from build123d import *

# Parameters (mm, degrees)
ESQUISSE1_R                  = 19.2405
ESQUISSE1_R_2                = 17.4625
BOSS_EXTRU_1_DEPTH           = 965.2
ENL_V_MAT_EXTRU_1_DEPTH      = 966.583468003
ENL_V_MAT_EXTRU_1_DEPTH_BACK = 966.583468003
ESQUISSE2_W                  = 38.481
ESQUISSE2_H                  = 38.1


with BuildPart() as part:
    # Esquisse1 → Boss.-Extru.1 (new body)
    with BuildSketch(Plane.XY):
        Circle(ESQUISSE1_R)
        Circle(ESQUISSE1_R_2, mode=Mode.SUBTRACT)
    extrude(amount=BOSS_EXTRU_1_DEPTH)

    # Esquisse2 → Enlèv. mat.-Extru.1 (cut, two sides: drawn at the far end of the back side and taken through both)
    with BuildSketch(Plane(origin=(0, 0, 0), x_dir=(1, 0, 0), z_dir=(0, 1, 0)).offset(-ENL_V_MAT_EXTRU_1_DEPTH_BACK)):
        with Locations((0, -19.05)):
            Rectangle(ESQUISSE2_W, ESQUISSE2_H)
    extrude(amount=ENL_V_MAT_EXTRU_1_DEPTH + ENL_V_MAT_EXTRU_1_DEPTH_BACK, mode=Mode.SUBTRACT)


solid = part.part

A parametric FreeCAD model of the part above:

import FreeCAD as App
import Part
import Sketcher
Q = App.Units.Quantity

doc = App.newDocument("Part")
body = doc.addObject("PartDesign::Body", "Body")

# Sketch on XY plane
sketch1 = doc.addObject("Sketcher::SketchObject", "Sketch")
body.addObject(sketch1)
sketch1.AttachmentSupport = (doc.XY_Plane, [""])
sketch1.MapMode = "FlatFace"
sketch1.addGeometry([
    Part.Circle(App.Vector(0, 0, 0), App.Vector(0, 0, 1), 19.2405),
    Part.Circle(App.Vector(0, 0, 0), App.Vector(0, 0, 1), 17.4625),
], False)
sketch1.addConstraint([
    Sketcher.Constraint("Coincident", 0, 3, -1, 1),
    Sketcher.Constraint("Coincident", 1, 3, -1, 1),
    Sketcher.Constraint("Diameter", 0, Q("1.515 in")),
    Sketcher.Constraint("Diameter", 1, Q("1.375 in")),
])
pad1 = doc.addObject("PartDesign::Pad", "Pad")
body.addObject(pad1)
pad1.Profile = sketch1
pad1.Length = Q("38 in")

# Sketch on XZ plane
sketch2 = doc.addObject("Sketcher::SketchObject", "Sketch001")
body.addObject(sketch2)
sketch2.AttachmentSupport = (doc.XZ_Plane, [""])
sketch2.MapMode = "FlatFace"
sketch2.addGeometry([
    Part.LineSegment(App.Vector(-19.2405, 0, 0), App.Vector(-19.2405, 38.1, 0)),
    Part.LineSegment(App.Vector(-19.2405, 38.1, 0), App.Vector(19.2405, 38.1, 0)),
    Part.LineSegment(App.Vector(19.2405, 38.1, 0), App.Vector(19.2405, 0, 0)),
    Part.LineSegment(App.Vector(19.2405, 0, 0), App.Vector(-19.2405, 0, 0)),
], False)
sketch2.addConstraint([
    Sketcher.Constraint("Coincident", 0, 2, 1, 1),
    Sketcher.Constraint("Coincident", 1, 2, 2, 1),
    Sketcher.Constraint("Coincident", 2, 2, 3, 1),
    Sketcher.Constraint("Coincident", 3, 2, 0, 1),
    Sketcher.Constraint("Vertical", 0),
    Sketcher.Constraint("Horizontal", 1),
    Sketcher.Constraint("Vertical", 2),
    Sketcher.Constraint("Horizontal", 3),
    Sketcher.Constraint("Symmetric", 2, 2, 3, 2, -1, 1),
    Sketcher.Constraint("DistanceY", 0, 1, 0, 2, Q("1.5 in")),
    Sketcher.Constraint("DistanceX", 1, 1, 1, 2, Q("1.515 in")),
])
pocket1 = doc.addObject("PartDesign::Pocket", "Pocket")
body.addObject(pocket1)
pocket1.Profile = sketch2
pocket1.Type = "ThroughAll"
pocket1.Midplane = True

doc.recompute()
